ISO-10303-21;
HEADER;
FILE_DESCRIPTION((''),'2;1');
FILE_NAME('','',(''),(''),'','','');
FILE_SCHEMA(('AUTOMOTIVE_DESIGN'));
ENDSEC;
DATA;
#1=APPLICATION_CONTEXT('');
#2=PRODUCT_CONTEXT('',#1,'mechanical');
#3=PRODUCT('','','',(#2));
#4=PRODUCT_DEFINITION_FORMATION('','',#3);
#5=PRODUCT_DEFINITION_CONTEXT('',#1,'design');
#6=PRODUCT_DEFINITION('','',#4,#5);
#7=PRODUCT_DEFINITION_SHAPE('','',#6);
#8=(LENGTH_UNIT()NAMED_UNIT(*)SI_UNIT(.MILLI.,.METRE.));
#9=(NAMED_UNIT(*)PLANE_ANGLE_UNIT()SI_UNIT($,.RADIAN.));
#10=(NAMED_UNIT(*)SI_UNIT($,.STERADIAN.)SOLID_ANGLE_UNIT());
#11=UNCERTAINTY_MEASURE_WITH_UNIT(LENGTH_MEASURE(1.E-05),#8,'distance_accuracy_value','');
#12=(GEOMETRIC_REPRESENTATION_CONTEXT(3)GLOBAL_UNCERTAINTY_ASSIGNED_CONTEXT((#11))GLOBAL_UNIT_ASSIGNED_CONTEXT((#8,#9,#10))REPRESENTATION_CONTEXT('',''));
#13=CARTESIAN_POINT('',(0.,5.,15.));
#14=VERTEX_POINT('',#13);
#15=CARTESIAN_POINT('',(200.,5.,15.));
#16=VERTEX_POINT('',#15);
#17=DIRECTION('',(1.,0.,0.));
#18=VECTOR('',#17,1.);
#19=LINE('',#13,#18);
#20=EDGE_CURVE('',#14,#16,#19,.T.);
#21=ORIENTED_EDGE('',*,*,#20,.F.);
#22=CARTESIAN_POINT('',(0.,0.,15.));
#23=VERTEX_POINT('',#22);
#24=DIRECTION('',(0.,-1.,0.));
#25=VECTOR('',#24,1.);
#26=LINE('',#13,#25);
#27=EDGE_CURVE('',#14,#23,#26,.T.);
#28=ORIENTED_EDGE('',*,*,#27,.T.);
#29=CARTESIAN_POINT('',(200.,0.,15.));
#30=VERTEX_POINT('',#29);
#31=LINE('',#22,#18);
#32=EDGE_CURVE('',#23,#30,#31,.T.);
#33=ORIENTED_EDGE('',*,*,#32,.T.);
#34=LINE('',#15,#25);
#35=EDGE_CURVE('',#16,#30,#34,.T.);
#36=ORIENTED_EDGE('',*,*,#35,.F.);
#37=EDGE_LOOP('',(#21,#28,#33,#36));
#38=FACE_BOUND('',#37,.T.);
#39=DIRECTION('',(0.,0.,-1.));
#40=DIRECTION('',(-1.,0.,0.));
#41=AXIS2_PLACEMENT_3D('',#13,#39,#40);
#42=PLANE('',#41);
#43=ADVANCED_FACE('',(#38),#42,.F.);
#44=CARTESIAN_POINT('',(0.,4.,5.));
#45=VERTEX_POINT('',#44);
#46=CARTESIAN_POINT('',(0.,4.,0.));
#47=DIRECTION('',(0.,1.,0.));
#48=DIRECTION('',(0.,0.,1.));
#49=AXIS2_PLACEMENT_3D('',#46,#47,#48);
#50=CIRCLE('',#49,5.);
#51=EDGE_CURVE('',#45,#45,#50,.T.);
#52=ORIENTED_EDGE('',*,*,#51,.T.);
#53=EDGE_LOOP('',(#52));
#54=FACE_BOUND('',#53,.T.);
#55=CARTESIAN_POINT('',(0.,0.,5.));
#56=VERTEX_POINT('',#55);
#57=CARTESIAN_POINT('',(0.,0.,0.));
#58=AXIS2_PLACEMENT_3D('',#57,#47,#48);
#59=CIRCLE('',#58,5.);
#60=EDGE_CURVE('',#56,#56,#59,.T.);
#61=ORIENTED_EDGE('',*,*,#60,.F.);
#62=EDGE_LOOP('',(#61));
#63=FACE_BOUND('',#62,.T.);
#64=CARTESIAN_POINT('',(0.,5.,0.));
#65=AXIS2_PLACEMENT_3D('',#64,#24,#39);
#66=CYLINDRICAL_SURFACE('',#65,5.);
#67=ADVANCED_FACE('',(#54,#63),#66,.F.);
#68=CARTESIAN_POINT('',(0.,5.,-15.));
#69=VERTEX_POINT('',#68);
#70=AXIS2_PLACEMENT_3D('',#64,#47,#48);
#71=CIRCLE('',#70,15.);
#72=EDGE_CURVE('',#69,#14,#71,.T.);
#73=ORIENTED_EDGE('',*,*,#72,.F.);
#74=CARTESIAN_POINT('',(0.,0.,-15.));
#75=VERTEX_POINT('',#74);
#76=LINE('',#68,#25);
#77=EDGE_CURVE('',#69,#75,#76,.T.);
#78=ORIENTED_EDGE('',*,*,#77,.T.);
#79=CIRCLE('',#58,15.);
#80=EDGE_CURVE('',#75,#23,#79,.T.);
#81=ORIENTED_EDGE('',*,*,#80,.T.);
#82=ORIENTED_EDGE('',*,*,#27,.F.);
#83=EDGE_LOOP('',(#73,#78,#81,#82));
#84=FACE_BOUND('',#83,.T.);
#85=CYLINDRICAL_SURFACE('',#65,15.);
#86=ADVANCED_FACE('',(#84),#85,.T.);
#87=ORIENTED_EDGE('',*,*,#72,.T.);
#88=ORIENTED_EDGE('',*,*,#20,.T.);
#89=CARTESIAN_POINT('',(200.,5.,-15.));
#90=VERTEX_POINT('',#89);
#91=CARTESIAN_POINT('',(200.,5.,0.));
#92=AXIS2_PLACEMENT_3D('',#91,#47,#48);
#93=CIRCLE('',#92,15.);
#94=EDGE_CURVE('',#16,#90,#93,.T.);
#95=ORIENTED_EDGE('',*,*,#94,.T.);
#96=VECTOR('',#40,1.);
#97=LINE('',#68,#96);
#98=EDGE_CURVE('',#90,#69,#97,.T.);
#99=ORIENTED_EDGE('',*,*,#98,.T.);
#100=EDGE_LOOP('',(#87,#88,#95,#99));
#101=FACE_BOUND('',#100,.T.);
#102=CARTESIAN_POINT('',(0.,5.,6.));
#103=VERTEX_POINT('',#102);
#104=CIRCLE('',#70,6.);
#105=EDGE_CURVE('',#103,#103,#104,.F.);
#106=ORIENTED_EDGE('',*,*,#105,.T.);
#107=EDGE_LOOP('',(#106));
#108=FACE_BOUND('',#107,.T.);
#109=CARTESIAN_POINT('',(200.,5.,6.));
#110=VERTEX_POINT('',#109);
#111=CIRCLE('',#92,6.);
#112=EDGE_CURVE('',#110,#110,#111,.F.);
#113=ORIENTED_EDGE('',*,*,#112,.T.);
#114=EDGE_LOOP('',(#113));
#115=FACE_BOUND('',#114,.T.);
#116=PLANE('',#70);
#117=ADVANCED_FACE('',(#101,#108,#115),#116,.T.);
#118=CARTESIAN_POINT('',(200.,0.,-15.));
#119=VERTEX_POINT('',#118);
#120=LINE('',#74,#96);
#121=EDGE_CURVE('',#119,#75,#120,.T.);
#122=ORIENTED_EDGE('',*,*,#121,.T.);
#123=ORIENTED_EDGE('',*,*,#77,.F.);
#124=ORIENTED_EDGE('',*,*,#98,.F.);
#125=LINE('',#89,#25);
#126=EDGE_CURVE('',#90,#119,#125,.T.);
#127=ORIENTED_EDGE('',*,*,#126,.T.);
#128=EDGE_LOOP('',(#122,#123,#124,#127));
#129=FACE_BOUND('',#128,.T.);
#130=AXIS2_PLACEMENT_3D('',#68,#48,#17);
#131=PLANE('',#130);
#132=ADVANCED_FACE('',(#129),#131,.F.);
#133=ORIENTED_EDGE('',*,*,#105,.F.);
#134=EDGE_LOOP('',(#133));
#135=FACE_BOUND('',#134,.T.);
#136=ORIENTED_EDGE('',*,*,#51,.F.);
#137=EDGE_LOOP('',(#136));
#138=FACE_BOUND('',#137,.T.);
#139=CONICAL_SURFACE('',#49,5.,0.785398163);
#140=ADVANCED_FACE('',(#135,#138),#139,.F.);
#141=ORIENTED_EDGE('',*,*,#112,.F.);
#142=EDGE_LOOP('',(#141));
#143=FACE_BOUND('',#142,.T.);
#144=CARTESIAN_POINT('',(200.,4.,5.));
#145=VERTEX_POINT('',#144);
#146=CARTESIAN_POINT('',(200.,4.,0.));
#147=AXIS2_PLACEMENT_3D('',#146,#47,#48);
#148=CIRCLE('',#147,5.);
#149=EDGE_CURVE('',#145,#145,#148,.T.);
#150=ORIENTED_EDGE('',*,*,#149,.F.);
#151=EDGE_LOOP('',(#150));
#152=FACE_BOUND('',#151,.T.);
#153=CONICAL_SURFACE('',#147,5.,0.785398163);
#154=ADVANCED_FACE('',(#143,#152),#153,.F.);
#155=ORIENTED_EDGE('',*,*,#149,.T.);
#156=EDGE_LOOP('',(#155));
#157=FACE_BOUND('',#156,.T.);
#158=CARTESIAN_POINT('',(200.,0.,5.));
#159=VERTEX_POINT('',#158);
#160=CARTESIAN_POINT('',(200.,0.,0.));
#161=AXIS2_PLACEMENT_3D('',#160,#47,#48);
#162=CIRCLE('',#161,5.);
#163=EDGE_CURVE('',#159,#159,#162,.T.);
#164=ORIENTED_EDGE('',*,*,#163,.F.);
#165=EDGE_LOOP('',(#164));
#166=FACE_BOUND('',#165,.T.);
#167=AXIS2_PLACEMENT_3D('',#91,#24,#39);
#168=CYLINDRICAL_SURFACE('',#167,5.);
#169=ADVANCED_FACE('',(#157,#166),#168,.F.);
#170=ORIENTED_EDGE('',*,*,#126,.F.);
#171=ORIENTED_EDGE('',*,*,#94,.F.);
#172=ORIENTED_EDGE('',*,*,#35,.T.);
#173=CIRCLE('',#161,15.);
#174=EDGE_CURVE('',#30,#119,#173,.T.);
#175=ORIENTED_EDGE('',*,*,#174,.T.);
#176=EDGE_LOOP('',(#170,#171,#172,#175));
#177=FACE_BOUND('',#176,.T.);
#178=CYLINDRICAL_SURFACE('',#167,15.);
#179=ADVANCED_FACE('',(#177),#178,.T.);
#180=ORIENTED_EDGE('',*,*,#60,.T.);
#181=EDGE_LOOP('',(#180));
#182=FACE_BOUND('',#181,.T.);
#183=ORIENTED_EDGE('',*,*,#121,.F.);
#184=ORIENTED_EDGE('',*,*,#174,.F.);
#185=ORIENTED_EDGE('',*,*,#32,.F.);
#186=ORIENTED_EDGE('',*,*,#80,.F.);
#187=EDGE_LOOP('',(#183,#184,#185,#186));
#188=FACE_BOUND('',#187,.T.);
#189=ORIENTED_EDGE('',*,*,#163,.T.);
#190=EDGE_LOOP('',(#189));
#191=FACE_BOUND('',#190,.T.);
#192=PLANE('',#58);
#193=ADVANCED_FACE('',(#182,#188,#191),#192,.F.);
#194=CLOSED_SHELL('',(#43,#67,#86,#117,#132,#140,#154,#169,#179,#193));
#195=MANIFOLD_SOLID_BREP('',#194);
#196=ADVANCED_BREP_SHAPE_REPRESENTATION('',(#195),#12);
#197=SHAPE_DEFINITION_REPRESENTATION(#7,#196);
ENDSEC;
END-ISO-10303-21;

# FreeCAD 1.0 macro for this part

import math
import FreeCAD as App
import Part
import Sketcher
Q = App.Units.Quantity


def edges_at(feature, points):
    """Names of the edges that pass closest to the given points."""
    edges = feature.Shape.Edges
    near = lambda p: min(range(len(edges)), key=lambda i: edges[i].distToShape(Part.Vertex(*p))[0])
    return sorted({f"Edge{near(p) + 1}" for p in points})

doc = App.newDocument("Part")
params = doc.addObject("Spreadsheet::Sheet", "Params")
for row, (alias, value) in enumerate([
    ("sketch1_diameter", "10 mm"),
    ("sketch1_radius", "15 mm"),
    ("sketch1_width", "200 mm"),
    ("pad1_length", "5 mm"),
    ("chamfer_size", "1 mm"),
    ("chamfer2_size", "1 mm"),
], start=1):
    params.set(f"A{row}", alias)
    params.set(f"B{row}", "=" + value)
    params.setAlias(f"B{row}", alias)

body = doc.addObject("PartDesign::Body", "Body")

# Sketch on XZ plane
sketch1 = doc.addObject("Sketcher::SketchObject", "Sketch")
body.addObject(sketch1)
sketch1.AttachmentSupport = (doc.XZ_Plane, [""])
sketch1.MapMode = "FlatFace"
sketch1.addGeometry([
    Part.LineSegment(App.Vector(200, -15, 0), App.Vector(0, -15, 0)),  # 0
    Part.ArcOfCircle(Part.Circle(App.Vector(0, 0, 0), App.Vector(0, 0, 1), 15), math.radians(90), math.radians(270)),  # 1
    Part.LineSegment(App.Vector(0, 15, 0), App.Vector(200, 15, 0)),  # 2
    Part.ArcOfCircle(Part.Circle(App.Vector(200, 0, 0), App.Vector(0, 0, 1), 15), math.radians(-90), math.radians(90)),  # 3
    Part.Circle(App.Vector(200, 0, 0), App.Vector(0, 0, 1), 5),  # 4
    Part.Circle(App.Vector(0, 0, 0), App.Vector(0, 0, 1), 5),  # 5
], False)
sketch1.addConstraint([
    Sketcher.Constraint("Tangent", 0, 2, 1, 2),
    Sketcher.Constraint("Tangent", 1, 1, 2, 1),
    Sketcher.Constraint("Tangent", 2, 2, 3, 2),
    Sketcher.Constraint("Tangent", 3, 1, 0, 1),
    Sketcher.Constraint("Horizontal", 0),
    Sketcher.Constraint("Horizontal", 2),
    Sketcher.Constraint("Coincident", 1, 3, -1, 1),
    Sketcher.Constraint("Coincident", 5, 3, -1, 1),
    Sketcher.Constraint("Coincident", 4, 3, 3, 3),
    Sketcher.Constraint("Equal", 4, 5),
    Sketcher.Constraint("Diameter", 4, Q("10 mm")),
    Sketcher.Constraint("Radius", 1, Q("15 mm")),
    Sketcher.Constraint("DistanceX", 0, 2, 0, 1, Q("200 mm")),
])
sketch1.setExpression("Constraints[10]", "Params.sketch1_diameter")
sketch1.setExpression("Constraints[11]", "Params.sketch1_radius")
sketch1.setExpression("Constraints[12]", "Params.sketch1_width")
pad1 = doc.addObject("PartDesign::Pad", "Pad")
body.addObject(pad1)
pad1.Profile = sketch1
pad1.setExpression("Length", "Params.pad1_length")
pad1.Reversed = True
doc.recompute()

chamfer = doc.addObject("PartDesign::Chamfer", "Chamfer")
body.addObject(chamfer)
chamfer.Base = (pad1, edges_at(pad1, [(200, 5, -5)]))
chamfer.setExpression("Size", "Params.chamfer_size")
doc.recompute()

chamfer2 = doc.addObject("PartDesign::Chamfer", "Chamfer001")
body.addObject(chamfer2)
chamfer2.Base = (chamfer, edges_at(chamfer, [(0, 5, -5)]))
chamfer2.setExpression("Size", "Params.chamfer2_size")

doc.recompute()
